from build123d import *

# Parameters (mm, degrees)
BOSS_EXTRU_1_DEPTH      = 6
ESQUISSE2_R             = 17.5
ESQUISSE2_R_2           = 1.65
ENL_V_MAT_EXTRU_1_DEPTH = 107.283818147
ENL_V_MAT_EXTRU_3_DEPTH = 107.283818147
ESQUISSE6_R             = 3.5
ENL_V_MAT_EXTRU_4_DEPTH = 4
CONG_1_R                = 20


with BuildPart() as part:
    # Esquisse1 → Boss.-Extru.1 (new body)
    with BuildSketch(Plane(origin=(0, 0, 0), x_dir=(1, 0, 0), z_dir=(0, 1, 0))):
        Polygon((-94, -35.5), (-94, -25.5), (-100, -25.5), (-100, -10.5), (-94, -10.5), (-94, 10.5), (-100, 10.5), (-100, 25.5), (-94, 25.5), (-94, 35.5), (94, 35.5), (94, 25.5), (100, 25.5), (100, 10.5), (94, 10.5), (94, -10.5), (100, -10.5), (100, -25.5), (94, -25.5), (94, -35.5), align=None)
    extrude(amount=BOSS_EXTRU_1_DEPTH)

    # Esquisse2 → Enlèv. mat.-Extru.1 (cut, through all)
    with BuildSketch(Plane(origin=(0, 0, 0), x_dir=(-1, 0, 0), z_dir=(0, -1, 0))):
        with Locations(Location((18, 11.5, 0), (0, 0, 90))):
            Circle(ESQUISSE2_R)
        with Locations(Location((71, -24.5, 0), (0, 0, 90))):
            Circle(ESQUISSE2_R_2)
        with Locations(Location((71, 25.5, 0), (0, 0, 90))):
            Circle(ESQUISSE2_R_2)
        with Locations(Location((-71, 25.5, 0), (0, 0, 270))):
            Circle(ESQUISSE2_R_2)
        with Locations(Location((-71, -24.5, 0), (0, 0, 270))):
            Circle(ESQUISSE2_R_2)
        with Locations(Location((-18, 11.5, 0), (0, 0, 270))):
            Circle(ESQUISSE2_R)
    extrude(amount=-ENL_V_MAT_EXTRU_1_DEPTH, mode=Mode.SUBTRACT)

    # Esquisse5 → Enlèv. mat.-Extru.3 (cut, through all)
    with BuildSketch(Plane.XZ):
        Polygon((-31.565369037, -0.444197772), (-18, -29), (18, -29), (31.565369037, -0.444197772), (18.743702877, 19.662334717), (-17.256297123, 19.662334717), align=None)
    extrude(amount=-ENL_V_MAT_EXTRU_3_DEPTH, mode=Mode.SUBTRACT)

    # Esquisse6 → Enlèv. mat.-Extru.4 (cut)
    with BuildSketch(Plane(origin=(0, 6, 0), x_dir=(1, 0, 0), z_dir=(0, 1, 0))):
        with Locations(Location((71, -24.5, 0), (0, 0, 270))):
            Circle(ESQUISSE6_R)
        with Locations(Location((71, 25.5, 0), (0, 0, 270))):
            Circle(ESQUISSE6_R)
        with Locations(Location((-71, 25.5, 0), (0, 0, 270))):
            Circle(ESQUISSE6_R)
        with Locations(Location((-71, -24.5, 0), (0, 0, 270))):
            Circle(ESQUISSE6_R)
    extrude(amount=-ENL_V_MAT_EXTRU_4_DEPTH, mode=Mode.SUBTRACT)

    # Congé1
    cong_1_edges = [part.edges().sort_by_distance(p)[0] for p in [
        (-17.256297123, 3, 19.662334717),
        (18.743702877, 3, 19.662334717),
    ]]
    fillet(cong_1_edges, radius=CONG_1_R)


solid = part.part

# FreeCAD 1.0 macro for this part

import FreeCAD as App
import Part
import Sketcher
from FreeCAD import Vector


def edges_at(feature, points):
    """Names of the edges that pass closest to the given points."""
    edges = feature.Shape.Edges
    near = lambda p: min(range(len(edges)), key=lambda i: edges[i].distToShape(Part.Vertex(*p))[0])
    return sorted({f"Edge{near(p) + 1}" for p in points})


def add_polygon(sketch, points):
    """Adds a closed chain of lines whose ends are joined by coincident constraints."""
    first, n = sketch.GeometryCount, len(points)
    for a, b in zip(points, points[1:] + points[:1]):
        sketch.addGeometry(Part.LineSegment(App.Vector(*a, 0), App.Vector(*b, 0)), False)
    for i in range(n):
        sketch.addConstraint(Sketcher.Constraint("Coincident", first + i, 2, first + (i + 1) % n, 1))

doc = App.newDocument("Part")
body = doc.addObject("PartDesign::Body", "Body")

# Sketch on XZ plane
sketch1 = body.newObject("Sketcher::SketchObject", "Sketch")
sketch1.AttachmentSupport = (doc.getObject("XZ_Plane"), [""])
sketch1.MapMode = "FlatFace"
add_polygon(sketch1, [(-94, 26), (-94, 36), (94, 36), (94, 26), (100, 26), (100, 10), (94, 10), (94, -10), (100, -10), (100, -26), (94, -26), (94, -36), (-94, -36), (-94, -26), (-100, -26), (-100, -10), (-94, -10), (-94, 10), (-100, 10), (-100, 26)])  # lines 0-19
sketch1.addConstraint([
    Sketcher.Constraint("Vertical", 0),
    Sketcher.Constraint("Horizontal", 1),
    Sketcher.Constraint("Vertical", 2),
    Sketcher.Constraint("Horizontal", 3),
    Sketcher.Constraint("Vertical", 4),
    Sketcher.Constraint("Horizontal", 5),
    Sketcher.Constraint("Vertical", 6),
    Sketcher.Constraint("Horizontal", 7),
    Sketcher.Constraint("Vertical", 8),
    Sketcher.Constraint("Horizontal", 9),
    Sketcher.Constraint("Vertical", 10),
    Sketcher.Constraint("Horizontal", 11),
    Sketcher.Constraint("Vertical", 12),
    Sketcher.Constraint("Horizontal", 13),
    Sketcher.Constraint("Vertical", 14),
    Sketcher.Constraint("Horizontal", 15),
    Sketcher.Constraint("Vertical", 16),
    Sketcher.Constraint("Horizontal", 17),
    Sketcher.Constraint("Vertical", 18),
    Sketcher.Constraint("Horizontal", 19),
    Sketcher.Constraint("Symmetric", 0, 2, 10, 2, -1, 1),
    Sketcher.Constraint("Symmetric", 2, 2, 12, 2, -1, 1),
    Sketcher.Constraint("Symmetric", 4, 2, 14, 2, -1, 1),
    Sketcher.Constraint("Symmetric", 6, 2, 16, 2, -1, 1),
    Sketcher.Constraint("Symmetric", 8, 2, 18, 2, -1, 1),
    Sketcher.Constraint("Symmetric", 9, 2, 12, 2, -2),
    Sketcher.Constraint("Symmetric", 7, 2, 14, 2, -2),
    Sketcher.Constraint("Vertical", 2, 2, 5, 2),
    Sketcher.Constraint("DistanceX", 1, 1, 1, 2, 188.0),
    Sketcher.Constraint("DistanceX", 3, 1, 3, 2, 6.0),
    Sketcher.Constraint("DistanceY", 0, 1, 0, 2, 10.0),
    Sketcher.Constraint("DistanceY", 4, 2, 4, 1, 15.0),
    Sketcher.Constraint("DistanceY", 6, 2, 6, 1, 21.0),
])
pad1 = body.newObject("PartDesign::Pad", "Pad")
pad1.Profile = sketch1
pad1.Length = 6
pad1.Reversed = True

# Sketch on XZ plane
sketch2 = body.newObject("Sketcher::SketchObject", "Sketch001")
sketch2.AttachmentSupport = (doc.getObject("XZ_Plane"), [""])
sketch2.MapMode = "FlatFace"
sketch2.addGeometry([
    Part.Circle(Vector(-18, -11.5, 0), Vector(0, 0, 1), 17.5),  # 0
    Part.Circle(Vector(-71, 24.5, 0), Vector(0, 0, 1), 1.6),  # 1
    Part.Circle(Vector(-71, -25.5, 0), Vector(0, 0, 1), 1.6),  # 2
    Part.Circle(Vector(71, -25.5, 0), Vector(0, 0, 1), 1.6),  # 3
    Part.Circle(Vector(71, 24.5, 0), Vector(0, 0, 1), 1.6),  # 4
    Part.Circle(Vector(18, -11.5, 0), Vector(0, 0, 1), 17.5),  # 5
], False)
sketch2.addConstraint([
    Sketcher.Constraint("Equal", 1, 2),
    Sketcher.Constraint("Equal", 2, 3),
    Sketcher.Constraint("Equal", 3, 4),
    Sketcher.Constraint("Equal", 0, 5),
    Sketcher.Constraint("Symmetric", 2, 3, 3, 3, -2),
    Sketcher.Constraint("Symmetric", 1, 3, 4, 3, -2),
    Sketcher.Constraint("Symmetric", 0, 3, 5, 3, -2),
    Sketcher.Constraint("Vertical", 1, 3, 2, 3),
    Sketcher.Constraint("Diameter", 0, 35.0),
    Sketcher.Constraint("Diameter", 1, 3.3),
    Sketcher.Constraint("DistanceX", 0, 3, -1, 1, 18.0),
    Sketcher.Constraint("DistanceX", 1, 3, -1, 1, 71.0),
    Sketcher.Constraint("DistanceY", 0, 3, 1, 3, 36.0),
    Sketcher.Constraint("DistanceY", 2, 3, 1, 3, 50.0),
    Sketcher.Constraint("DistanceY", 0, 3, -1, 1, 11.5),
])
pocket1 = body.newObject("PartDesign::Pocket", "Pocket")
pocket1.Profile = sketch2
pocket1.Type = "ThroughAll"

# Sketch on XZ plane
sketch3 = body.newObject("Sketcher::SketchObject", "Sketch002")
sketch3.AttachmentSupport = (doc.getObject("XZ_Plane"), [""])
sketch3.MapMode = "FlatFace"
add_polygon(sketch3, [(-32, 0), (-18, -29), (18, -29), (32, 0), (19, 20), (-17, 20)])  # lines 0-5
sketch3.addConstraint([
    Sketcher.Constraint("Horizontal", 1),
    Sketcher.Constraint("Horizontal", 4),
    Sketcher.Constraint("Symmetric", 2, 2, 5, 2, -2),
    Sketcher.Constraint("Equal", 1, 4),
    Sketcher.Constraint("Equal", 0, 2),
    Sketcher.Constraint("DistanceX", 1, 1, 1, 2, 36.0),
    Sketcher.Constraint("DistanceY", 0, 2, -1, 1, 29.0),
    Sketcher.Constraint("DistanceX", -1, 1, 2, 2, 31.565369),
    Sketcher.Constraint("DistanceX", 5, 2, 4, 2, 14.309072),
    Sketcher.Constraint("Distance", 0, 31.614128),
    Sketcher.Constraint("Distance", 3, 23.846756),
])
pocket2 = body.newObject("PartDesign::Pocket", "Pocket001")
pocket2.Profile = sketch3
pocket2.Type = "ThroughAll"

# Sketch on XZ plane
sketch4 = body.newObject("Sketcher::SketchObject", "Sketch003")
sketch4.AttachmentSupport = (doc.getObject("XZ_Plane"), [""])
sketch4.MapMode = "FlatFace"
sketch4.AttachmentOffset = App.Placement(Vector(0, 0, -6), App.Rotation())
sketch4.addGeometry([
    Part.Circle(Vector(71, 24.5, 0), Vector(0, 0, 1), 3.5),
    Part.Circle(Vector(71, -25.5, 0), Vector(0, 0, 1), 3.5),
    Part.Circle(Vector(-71, -25.5, 0), Vector(0, 0, 1), 3.5),
    Part.Circle(Vector(-71, 24.5, 0), Vector(0, 0, 1), 3.5),
], False)
sketch4.addConstraint([
    Sketcher.Constraint("Equal", 0, 1),
    Sketcher.Constraint("Equal", 1, 2),
    Sketcher.Constraint("Equal", 2, 3),
    Sketcher.Constraint("Symmetric", 1, 3, 2, 3, -2),
    Sketcher.Constraint("Symmetric", 0, 3, 3, 3, -2),
    Sketcher.Constraint("Vertical", 0, 3, 1, 3),
    Sketcher.Constraint("Diameter", 0, 7.0),
    Sketcher.Constraint("DistanceX", -1, 1, 0, 3, 71.0),
    Sketcher.Constraint("DistanceY", 1, 3, 0, 3, 50.0),
    Sketcher.Constraint("DistanceY", -1, 1, 0, 3, 24.5),
])
pocket3 = body.newObject("PartDesign::Pocket", "Pocket002")
pocket3.Profile = sketch4
pocket3.Length = 4
pocket3.Reversed = True
doc.recompute()

fillet = body.newObject("PartDesign::Fillet", "Fillet")
fillet.Base = (pocket3, edges_at(pocket3, [(-17.256, 3, 19.662), (18.744, 3, 19.662)]))
fillet.Radius = 20

doc.recompute()
